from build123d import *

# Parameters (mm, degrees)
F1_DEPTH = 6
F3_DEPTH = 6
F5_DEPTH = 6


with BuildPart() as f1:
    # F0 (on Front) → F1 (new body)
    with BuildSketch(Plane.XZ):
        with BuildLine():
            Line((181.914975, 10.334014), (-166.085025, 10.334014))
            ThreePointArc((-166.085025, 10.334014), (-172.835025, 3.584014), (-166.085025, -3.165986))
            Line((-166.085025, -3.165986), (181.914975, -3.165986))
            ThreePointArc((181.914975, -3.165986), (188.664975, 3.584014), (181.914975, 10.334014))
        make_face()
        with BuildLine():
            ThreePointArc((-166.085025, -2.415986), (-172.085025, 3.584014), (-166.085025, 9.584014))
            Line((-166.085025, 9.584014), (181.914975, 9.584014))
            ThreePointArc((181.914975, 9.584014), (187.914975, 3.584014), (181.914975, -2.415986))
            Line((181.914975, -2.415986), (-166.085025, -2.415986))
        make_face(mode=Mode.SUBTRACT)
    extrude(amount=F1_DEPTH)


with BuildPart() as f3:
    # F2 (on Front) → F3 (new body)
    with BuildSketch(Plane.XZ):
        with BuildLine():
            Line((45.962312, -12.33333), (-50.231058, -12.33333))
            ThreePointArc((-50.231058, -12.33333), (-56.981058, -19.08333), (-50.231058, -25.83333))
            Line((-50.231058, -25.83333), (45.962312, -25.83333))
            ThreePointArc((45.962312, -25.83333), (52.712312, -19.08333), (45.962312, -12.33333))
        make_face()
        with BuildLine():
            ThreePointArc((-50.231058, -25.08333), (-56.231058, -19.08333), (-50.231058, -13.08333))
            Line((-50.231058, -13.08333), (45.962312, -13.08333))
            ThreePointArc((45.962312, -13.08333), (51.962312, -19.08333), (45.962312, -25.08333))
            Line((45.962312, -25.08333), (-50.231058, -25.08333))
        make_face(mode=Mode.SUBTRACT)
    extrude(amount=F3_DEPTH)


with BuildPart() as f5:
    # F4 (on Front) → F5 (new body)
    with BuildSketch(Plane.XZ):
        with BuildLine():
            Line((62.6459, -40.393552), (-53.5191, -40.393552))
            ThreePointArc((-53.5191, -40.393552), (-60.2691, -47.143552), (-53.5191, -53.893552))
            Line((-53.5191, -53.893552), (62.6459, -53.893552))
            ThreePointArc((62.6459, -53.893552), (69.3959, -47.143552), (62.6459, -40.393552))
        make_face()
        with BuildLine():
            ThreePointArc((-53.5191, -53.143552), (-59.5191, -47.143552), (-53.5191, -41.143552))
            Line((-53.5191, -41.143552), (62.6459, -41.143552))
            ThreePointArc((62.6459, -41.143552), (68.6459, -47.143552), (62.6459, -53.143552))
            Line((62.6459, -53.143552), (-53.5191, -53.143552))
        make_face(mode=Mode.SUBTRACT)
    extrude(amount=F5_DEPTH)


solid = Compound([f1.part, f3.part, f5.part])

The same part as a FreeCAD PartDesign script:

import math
import FreeCAD as App
import Part
import Sketcher

V = App.Vector

doc = App.newDocument("Part")
params = doc.addObject("Spreadsheet::Sheet", "Params")
for row, (alias, value) in enumerate([
    ("sketch1_radius", "6 mm"),
    ("sketch1_width", "348 mm"),
    ("sketch1_radius2", "6.75 mm"),
    ("pad1_length", "6 mm"),
    ("sketch2_radius", "6 mm"),
    ("sketch2_radius2", "6.75 mm"),
    ("pad2_length", "6 mm"),
    ("sketch3_radius", "6 mm"),
    ("sketch3_radius2", "6.75 mm"),
    ("pad3_length", "6 mm"),
], start=1):
    params.set(f"A{row}", alias)
    params.set(f"B{row}", "=" + value)
    params.setAlias(f"B{row}", alias)

body = doc.addObject("PartDesign::Body", "Body")

# Sketch on XZ plane
sketch1 = doc.addObject("Sketcher::SketchObject", "Sketch")
body.addObject(sketch1)
sketch1.AttachmentSupport = (doc.XZ_Plane, [""])
sketch1.MapMode = "FlatFace"
sketch1.addGeometry(Part.LineSegment(V(182, 10, 0), V(-166, 10, 0)), False)
sketch1.addGeometry(Part.ArcOfCircle(Part.Circle(V(-166, 4, 0), V(0, 0, 1), 7), math.radians(90), math.radians(270)), False)
sketch1.addGeometry(Part.LineSegment(V(-166, -3, 0), V(182, -3, 0)), False)
sketch1.addGeometry(Part.ArcOfCircle(Part.Circle(V(182, 4, 0), V(0, 0, 1), 7), math.radians(-90), math.radians(90)), False)
sketch1.addGeometry(Part.LineSegment(V(182, -2, 0), V(-166, -2, 0)), False)
sketch1.addGeometry(Part.ArcOfCircle(Part.Circle(V(-166, 4, 0), V(0, 0, 1), 6), math.radians(90), math.radians(270)), False)
sketch1.addGeometry(Part.LineSegment(V(-166, 10, 0), V(182, 10, 0)), False)
sketch1.addGeometry(Part.ArcOfCircle(Part.Circle(V(182, 4, 0), V(0, 0, 1), 6), math.radians(-90), math.radians(90)), False)
sketch1.addConstraint(Sketcher.Constraint("Tangent", 0, 2, 1, 1))
sketch1.addConstraint(Sketcher.Constraint("Tangent", 1, 2, 2, 1))
sketch1.addConstraint(Sketcher.Constraint("Tangent", 2, 2, 3, 1))
sketch1.addConstraint(Sketcher.Constraint("Tangent", 3, 2, 0, 1))
sketch1.addConstraint(Sketcher.Constraint("Tangent", 4, 2, 5, 2))
sketch1.addConstraint(Sketcher.Constraint("Tangent", 5, 1, 6, 1))
sketch1.addConstraint(Sketcher.Constraint("Tangent", 6, 2, 7, 2))
sketch1.addConstraint(Sketcher.Constraint("Tangent", 7, 1, 4, 1))
sketch1.addConstraint(Sketcher.Constraint("Horizontal", 0))
sketch1.addConstraint(Sketcher.Constraint("Horizontal", 2))
sketch1.addConstraint(Sketcher.Constraint("Horizontal", 4))
sketch1.addConstraint(Sketcher.Constraint("Horizontal", 6))
sketch1.addConstraint(Sketcher.Constraint("Coincident", 5, 3, 1, 3))
sketch1.addConstraint(Sketcher.Constraint("Vertical", 7, 3, 2, 2))
sketch1.addConstraint(Sketcher.Constraint("Radius", 5, 6.0))
sketch1.addConstraint(Sketcher.Constraint("DistanceX", 0, 2, 0, 1, 348.0))
sketch1.addConstraint(Sketcher.Constraint("Radius", 1, 6.75))
sketch1.addConstraint(Sketcher.Constraint("DistanceX", 1, 3, -1, 1, 166.085025))
sketch1.addConstraint(Sketcher.Constraint("DistanceY", -1, 1, 1, 3, 3.584014))
sketch1.setExpression("Constraints[14]", "Params.sketch1_radius")
sketch1.setExpression("Constraints[15]", "Params.sketch1_width")
sketch1.setExpression("Constraints[16]", "Params.sketch1_radius2")
pad1 = doc.addObject("PartDesign::Pad", "Pad")
body.addObject(pad1)
pad1.Profile = sketch1
pad1.setExpression("Length", "Params.pad1_length")
body2 = doc.addObject("PartDesign::Body", "Body001")

# Sketch on XZ plane
sketch2 = doc.addObject("Sketcher::SketchObject", "Sketch001")
body2.addObject(sketch2)
sketch2.AttachmentSupport = (doc.getObject("XZ_Plane001"), [""])
sketch2.MapMode = "FlatFace"
sketch2.addGeometry(Part.LineSegment(V(46, -12, 0), V(-50, -12, 0)), False)
sketch2.addGeometry(Part.ArcOfCircle(Part.Circle(V(-50, -19, 0), V(0, 0, 1), 7), math.radians(90), math.radians(270)), False)
sketch2.addGeometry(Part.LineSegment(V(-50, -26, 0), V(46, -26, 0)), False)
sketch2.addGeometry(Part.ArcOfCircle(Part.Circle(V(46, -19, 0), V(0, 0, 1), 7), math.radians(-90), math.radians(90)), False)
sketch2.addGeometry(Part.LineSegment(V(46, -25, 0), V(-50, -25, 0)), False)
sketch2.addGeometry(Part.ArcOfCircle(Part.Circle(V(-50, -19, 0), V(0, 0, 1), 6), math.radians(90), math.radians(270)), False)
sketch2.addGeometry(Part.LineSegment(V(-50, -13, 0), V(46, -13, 0)), False)
sketch2.addGeometry(Part.ArcOfCircle(Part.Circle(V(46, -19, 0), V(0, 0, 1), 6), math.radians(-90), math.radians(90)), False)
sketch2.addConstraint(Sketcher.Constraint("Tangent", 0, 2, 1, 1))
sketch2.addConstraint(Sketcher.Constraint("Tangent", 1, 2, 2, 1))
sketch2.addConstraint(Sketcher.Constraint("Tangent", 2, 2, 3, 1))
sketch2.addConstraint(Sketcher.Constraint("Tangent", 3, 2, 0, 1))
sketch2.addConstraint(Sketcher.Constraint("Tangent", 4, 2, 5, 2))
sketch2.addConstraint(Sketcher.Constraint("Tangent", 5, 1, 6, 1))
sketch2.addConstraint(Sketcher.Constraint("Tangent", 6, 2, 7, 2))
sketch2.addConstraint(Sketcher.Constraint("Tangent", 7, 1, 4, 1))
sketch2.addConstraint(Sketcher.Constraint("Horizontal", 0))
sketch2.addConstraint(Sketcher.Constraint("Horizontal", 2))
sketch2.addConstraint(Sketcher.Constraint("Horizontal", 4))
sketch2.addConstraint(Sketcher.Constraint("Horizontal", 6))
sketch2.addConstraint(Sketcher.Constraint("Coincident", 5, 3, 1, 3))
sketch2.addConstraint(Sketcher.Constraint("Vertical", 7, 3, 2, 2))
sketch2.addConstraint(Sketcher.Constraint("Radius", 5, 6.0))
sketch2.addConstraint(Sketcher.Constraint("Radius", 1, 6.75))
sketch2.addConstraint(Sketcher.Constraint("DistanceX", 0, 2, 0, 1, 96.19337))
sketch2.addConstraint(Sketcher.Constraint("DistanceY", 1, 3, -1, 1, 19.08333))
sketch2.addConstraint(Sketcher.Constraint("DistanceX", -1, 1, 3, 3, 45.962312))
sketch2.setExpression("Constraints[14]", "Params.sketch2_radius")
sketch2.setExpression("Constraints[15]", "Params.sketch2_radius2")
pad2 = doc.addObject("PartDesign::Pad", "Pad001")
body2.addObject(pad2)
pad2.Profile = sketch2
pad2.setExpression("Length", "Params.pad2_length")
body3 = doc.addObject("PartDesign::Body", "Body002")

# Sketch on XZ plane
sketch3 = doc.addObject("Sketcher::SketchObject", "Sketch002")
body3.addObject(sketch3)
sketch3.AttachmentSupport = (doc.getObject("XZ_Plane002"), [""])
sketch3.MapMode = "FlatFace"
sketch3.addGeometry(Part.LineSegment(V(63, -40, 0), V(-54, -40, 0)), False)
sketch3.addGeometry(Part.ArcOfCircle(Part.Circle(V(-54, -47, 0), V(0, 0, 1), 7), math.radians(90), math.radians(270)), False)
sketch3.addGeometry(Part.LineSegment(V(-54, -54, 0), V(63, -54, 0)), False)
sketch3.addGeometry(Part.ArcOfCircle(Part.Circle(V(63, -47, 0), V(0, 0, 1), 7), math.radians(-90), math.radians(90)), False)
sketch3.addGeometry(Part.LineSegment(V(63, -53, 0), V(-54, -53, 0)), False)
sketch3.addGeometry(Part.ArcOfCircle(Part.Circle(V(-54, -47, 0), V(0, 0, 1), 6), math.radians(90), math.radians(270)), False)
sketch3.addGeometry(Part.LineSegment(V(-54, -41, 0), V(63, -41, 0)), False)
sketch3.addGeometry(Part.ArcOfCircle(Part.Circle(V(63, -47, 0), V(0, 0, 1), 6), math.radians(-90), math.radians(90)), False)
sketch3.addConstraint(Sketcher.Constraint("Tangent", 0, 2, 1, 1))
sketch3.addConstraint(Sketcher.Constraint("Tangent", 1, 2, 2, 1))
sketch3.addConstraint(Sketcher.Constraint("Tangent", 2, 2, 3, 1))
sketch3.addConstraint(Sketcher.Constraint("Tangent", 3, 2, 0, 1))
sketch3.addConstraint(Sketcher.Constraint("Tangent", 4, 2, 5, 2))
sketch3.addConstraint(Sketcher.Constraint("Tangent", 5, 1, 6, 1))
sketch3.addConstraint(Sketcher.Constraint("Tangent", 6, 2, 7, 2))
sketch3.addConstraint(Sketcher.Constraint("Tangent", 7, 1, 4, 1))
sketch3.addConstraint(Sketcher.Constraint("Horizontal", 0))
sketch3.addConstraint(Sketcher.Constraint("Horizontal", 2))
sketch3.addConstraint(Sketcher.Constraint("Horizontal", 4))
sketch3.addConstraint(Sketcher.Constraint("Horizontal", 6))
sketch3.addConstraint(Sketcher.Constraint("Coincident", 5, 3, 1, 3))
sketch3.addConstraint(Sketcher.Constraint("Vertical", 7, 3, 2, 2))
sketch3.addConstraint(Sketcher.Constraint("Radius", 5, 6.0))
sketch3.addConstraint(Sketcher.Constraint("Radius", 1, 6.75))
sketch3.addConstraint(Sketcher.Constraint("DistanceX", 0, 2, 0, 1, 116.165))
sketch3.addConstraint(Sketcher.Constraint("DistanceX", 1, 3, -1, 1, 53.5191))
sketch3.addConstraint(Sketcher.Constraint("DistanceY", 1, 3, -1, 1, 47.143552))
sketch3.setExpression("Constraints[14]", "Params.sketch3_radius")
sketch3.setExpression("Constraints[15]", "Params.sketch3_radius2")
pad3 = doc.addObject("PartDesign::Pad", "Pad002")
body3.addObject(pad3)
pad3.Profile = sketch3
pad3.setExpression("Length", "Params.pad3_length")

doc.recompute()
